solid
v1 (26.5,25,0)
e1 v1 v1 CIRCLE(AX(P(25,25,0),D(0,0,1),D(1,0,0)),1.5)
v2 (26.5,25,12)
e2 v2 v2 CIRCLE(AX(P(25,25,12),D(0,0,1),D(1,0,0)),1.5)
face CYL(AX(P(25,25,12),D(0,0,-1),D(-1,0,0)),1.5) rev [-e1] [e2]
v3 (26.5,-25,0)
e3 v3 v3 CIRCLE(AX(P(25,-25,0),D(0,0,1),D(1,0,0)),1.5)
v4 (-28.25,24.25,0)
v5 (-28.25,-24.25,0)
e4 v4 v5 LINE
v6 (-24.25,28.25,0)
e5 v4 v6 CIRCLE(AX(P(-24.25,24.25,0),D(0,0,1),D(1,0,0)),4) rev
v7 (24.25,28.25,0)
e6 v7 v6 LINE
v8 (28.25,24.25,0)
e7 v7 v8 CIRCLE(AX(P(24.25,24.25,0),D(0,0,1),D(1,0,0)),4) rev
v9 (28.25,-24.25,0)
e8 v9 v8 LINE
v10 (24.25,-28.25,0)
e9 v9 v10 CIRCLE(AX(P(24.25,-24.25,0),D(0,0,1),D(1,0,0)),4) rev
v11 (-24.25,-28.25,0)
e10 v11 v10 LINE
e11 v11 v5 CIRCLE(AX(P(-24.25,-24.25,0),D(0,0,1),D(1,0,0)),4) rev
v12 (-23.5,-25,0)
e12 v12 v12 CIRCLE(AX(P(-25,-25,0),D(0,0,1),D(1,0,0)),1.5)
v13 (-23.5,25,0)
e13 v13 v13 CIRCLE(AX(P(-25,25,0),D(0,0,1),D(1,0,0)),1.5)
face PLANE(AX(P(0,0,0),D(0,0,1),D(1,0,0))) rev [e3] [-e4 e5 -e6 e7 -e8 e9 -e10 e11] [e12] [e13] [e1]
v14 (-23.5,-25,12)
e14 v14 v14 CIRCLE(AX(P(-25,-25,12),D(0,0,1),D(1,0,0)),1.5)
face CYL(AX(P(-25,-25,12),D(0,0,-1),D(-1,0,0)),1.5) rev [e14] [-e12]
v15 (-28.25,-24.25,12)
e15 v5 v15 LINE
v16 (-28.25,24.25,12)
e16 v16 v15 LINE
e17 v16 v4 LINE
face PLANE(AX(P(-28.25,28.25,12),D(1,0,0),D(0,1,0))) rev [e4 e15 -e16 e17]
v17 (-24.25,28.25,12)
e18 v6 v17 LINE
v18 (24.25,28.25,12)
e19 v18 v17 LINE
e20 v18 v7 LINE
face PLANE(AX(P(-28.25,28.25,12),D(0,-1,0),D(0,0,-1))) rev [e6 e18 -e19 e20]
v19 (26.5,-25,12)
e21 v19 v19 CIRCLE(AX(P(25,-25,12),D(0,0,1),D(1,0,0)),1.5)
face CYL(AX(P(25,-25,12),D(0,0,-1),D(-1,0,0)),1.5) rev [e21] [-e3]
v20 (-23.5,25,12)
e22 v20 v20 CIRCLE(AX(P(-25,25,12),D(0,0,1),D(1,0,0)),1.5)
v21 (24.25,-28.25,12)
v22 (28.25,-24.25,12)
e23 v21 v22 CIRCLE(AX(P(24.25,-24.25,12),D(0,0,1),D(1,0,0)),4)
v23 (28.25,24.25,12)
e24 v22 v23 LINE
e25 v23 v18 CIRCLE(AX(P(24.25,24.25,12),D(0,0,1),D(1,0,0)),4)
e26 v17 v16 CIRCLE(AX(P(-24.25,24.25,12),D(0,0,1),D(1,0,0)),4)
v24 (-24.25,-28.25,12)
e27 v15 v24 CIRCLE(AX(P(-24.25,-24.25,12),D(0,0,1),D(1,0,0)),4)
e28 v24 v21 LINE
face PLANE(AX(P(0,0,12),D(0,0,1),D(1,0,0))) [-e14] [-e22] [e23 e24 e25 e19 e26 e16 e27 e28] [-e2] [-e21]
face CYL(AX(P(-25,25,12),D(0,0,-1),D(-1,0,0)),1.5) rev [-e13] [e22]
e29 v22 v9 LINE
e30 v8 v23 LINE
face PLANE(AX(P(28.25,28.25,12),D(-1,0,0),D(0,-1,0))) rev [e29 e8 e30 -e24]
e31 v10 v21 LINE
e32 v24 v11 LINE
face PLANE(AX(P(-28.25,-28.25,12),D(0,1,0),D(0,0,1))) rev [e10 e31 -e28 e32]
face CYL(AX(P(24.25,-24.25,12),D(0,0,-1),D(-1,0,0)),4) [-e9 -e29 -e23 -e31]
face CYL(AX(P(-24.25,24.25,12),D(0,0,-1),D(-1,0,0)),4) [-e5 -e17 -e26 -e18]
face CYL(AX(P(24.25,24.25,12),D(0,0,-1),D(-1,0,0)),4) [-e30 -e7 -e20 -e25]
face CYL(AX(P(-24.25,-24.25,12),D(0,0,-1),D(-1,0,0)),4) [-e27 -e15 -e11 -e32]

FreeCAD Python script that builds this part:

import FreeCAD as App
import Part
import Sketcher
from FreeCAD import Vector
Q = App.Units.Quantity


def edges_at(feature, points):
    """Names of the edges that pass closest to the given points."""
    edges = feature.Shape.Edges
    near = lambda p: min(range(len(edges)), key=lambda i: edges[i].distToShape(Part.Vertex(*p))[0])
    return sorted({f"Edge{near(p) + 1}" for p in points})


def add_polygon(sketch, points):
    """Adds a closed chain of lines whose ends are joined by coincident constraints."""
    first, n = sketch.GeometryCount, len(points)
    for a, b in zip(points, points[1:] + points[:1]):
        sketch.addGeometry(Part.LineSegment(App.Vector(*a, 0), App.Vector(*b, 0)), False)
    for i in range(n):
        sketch.addConstraint(Sketcher.Constraint("Coincident", first + i, 2, first + (i + 1) % n, 1))

doc = App.newDocument("Part")
body = doc.addObject("PartDesign::Body", "Body")

# Sketch on XY plane
sketch1 = body.newObject("Sketcher::SketchObject", "Sketch")
sketch1.AttachmentSupport = (doc.getObject("XY_Plane"), [""])
sketch1.MapMode = "FlatFace"
add_polygon(sketch1, [(-28.2, 28.2), (-28.2, -28.2), (28.2, -28.2), (28.2, 28.2)])  # lines 0-3
sketch1.addGeometry(Part.Circle(Vector(-25, -25, 0), Vector(0, 0, 1), 1.5), False)  # 4
sketch1.addGeometry(Part.Circle(Vector(25, -25, 0), Vector(0, 0, 1), 1.5), False)  # 5
sketch1.addGeometry(Part.Circle(Vector(-25, 25, 0), Vector(0, 0, 1), 1.5), False)  # 6
sketch1.addGeometry(Part.Circle(Vector(25, 25, 0), Vector(0, 0, 1), 1.5), False)  # 7
sketch1.addConstraint([
    Sketcher.Constraint("Vertical", 0),
    Sketcher.Constraint("Horizontal", 1),
    Sketcher.Constraint("Vertical", 2),
    Sketcher.Constraint("Horizontal", 3),
    Sketcher.Constraint("Equal", 4, 5),
    Sketcher.Constraint("Equal", 5, 6),
    Sketcher.Constraint("Equal", 6, 7),
    Sketcher.Constraint("Symmetric", 5, 3, 6, 3, -1, 1),
    Sketcher.Constraint("Symmetric", 4, 3, 7, 3, -1, 1),
    Sketcher.Constraint("Symmetric", 0, 2, 2, 2, -1, 1),
    Sketcher.Constraint("Symmetric", 4, 3, 5, 3, -2),
    Sketcher.Constraint("Equal", 3, 0),
    Sketcher.Constraint("Diameter", 4, Q("3 mm")),
    Sketcher.Constraint("DistanceX", 1, 1, 1, 2, Q("56.5 mm")),
    Sketcher.Constraint("DistanceX", 4, 3, -1, 1, Q("25 mm")),
    Sketcher.Constraint("DistanceY", 4, 3, -1, 1, Q("25 mm")),
])
pad1 = body.newObject("PartDesign::Pad", "Pad")
pad1.Profile = sketch1
pad1.Length = 12
doc.recompute()

fillet = body.newObject("PartDesign::Fillet", "Fillet")
fillet.Base = (pad1, edges_at(pad1, [
    (28.25, -28.25, 6),
    (-28.25, -28.25, 6),
    (-28.25, 28.25, 6),
    (28.25, 28.25, 6),
]))
fillet.Radius = 4

doc.recompute()
